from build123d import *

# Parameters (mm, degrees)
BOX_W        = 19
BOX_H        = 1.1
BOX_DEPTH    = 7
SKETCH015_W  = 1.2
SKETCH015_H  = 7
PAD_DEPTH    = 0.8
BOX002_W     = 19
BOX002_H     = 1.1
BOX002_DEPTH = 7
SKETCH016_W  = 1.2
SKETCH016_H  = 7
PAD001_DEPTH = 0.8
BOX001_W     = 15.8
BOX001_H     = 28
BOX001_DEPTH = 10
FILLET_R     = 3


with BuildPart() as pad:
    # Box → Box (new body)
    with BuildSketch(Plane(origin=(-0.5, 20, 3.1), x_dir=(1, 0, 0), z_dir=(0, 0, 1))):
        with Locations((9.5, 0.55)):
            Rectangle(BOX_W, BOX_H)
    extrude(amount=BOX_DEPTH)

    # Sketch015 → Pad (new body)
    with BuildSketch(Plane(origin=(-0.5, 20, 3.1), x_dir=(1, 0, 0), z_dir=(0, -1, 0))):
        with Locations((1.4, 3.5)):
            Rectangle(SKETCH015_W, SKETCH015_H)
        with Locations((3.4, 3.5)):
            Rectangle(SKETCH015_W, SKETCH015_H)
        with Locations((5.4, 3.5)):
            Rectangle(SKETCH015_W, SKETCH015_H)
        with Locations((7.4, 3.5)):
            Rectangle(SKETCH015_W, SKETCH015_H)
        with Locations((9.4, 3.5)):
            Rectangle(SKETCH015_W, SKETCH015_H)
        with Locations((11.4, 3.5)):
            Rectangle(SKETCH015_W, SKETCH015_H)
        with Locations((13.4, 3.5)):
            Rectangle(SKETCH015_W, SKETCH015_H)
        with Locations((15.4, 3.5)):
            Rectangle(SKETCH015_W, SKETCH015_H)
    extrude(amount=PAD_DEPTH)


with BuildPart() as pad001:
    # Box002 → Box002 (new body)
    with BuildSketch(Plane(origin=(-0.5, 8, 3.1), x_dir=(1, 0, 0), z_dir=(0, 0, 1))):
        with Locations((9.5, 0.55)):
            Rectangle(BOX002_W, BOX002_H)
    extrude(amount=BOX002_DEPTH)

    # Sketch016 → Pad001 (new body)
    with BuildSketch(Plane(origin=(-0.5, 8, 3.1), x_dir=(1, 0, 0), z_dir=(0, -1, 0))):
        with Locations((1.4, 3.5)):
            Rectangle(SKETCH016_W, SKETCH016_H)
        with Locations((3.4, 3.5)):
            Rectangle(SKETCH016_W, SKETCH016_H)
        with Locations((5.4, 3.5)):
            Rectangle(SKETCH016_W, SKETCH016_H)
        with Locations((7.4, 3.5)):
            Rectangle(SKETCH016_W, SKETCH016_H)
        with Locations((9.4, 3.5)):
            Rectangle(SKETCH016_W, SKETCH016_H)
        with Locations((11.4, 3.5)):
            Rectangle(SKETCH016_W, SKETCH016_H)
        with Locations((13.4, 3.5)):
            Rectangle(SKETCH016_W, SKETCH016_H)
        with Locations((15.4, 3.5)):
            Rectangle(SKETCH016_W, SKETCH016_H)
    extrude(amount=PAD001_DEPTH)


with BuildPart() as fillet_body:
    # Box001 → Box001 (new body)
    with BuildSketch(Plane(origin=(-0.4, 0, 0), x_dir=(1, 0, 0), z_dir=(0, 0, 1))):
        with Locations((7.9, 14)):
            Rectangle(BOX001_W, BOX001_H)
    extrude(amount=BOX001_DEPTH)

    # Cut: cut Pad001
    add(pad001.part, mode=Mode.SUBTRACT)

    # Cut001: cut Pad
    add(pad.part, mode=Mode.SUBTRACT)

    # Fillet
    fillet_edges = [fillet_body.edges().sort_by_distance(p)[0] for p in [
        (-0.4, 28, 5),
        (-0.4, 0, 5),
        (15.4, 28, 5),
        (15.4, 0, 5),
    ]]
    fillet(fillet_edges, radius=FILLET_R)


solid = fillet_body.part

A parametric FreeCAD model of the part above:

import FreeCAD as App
import Part
import Sketcher

V = App.Vector
Q = App.Units.Quantity


def edges_at(feature, points):
    """Names of the edges that pass closest to the given points."""
    edges = feature.Shape.Edges
    near = lambda p: min(range(len(edges)), key=lambda i: edges[i].distToShape(Part.Vertex(*p))[0])
    return sorted({f"Edge{near(p) + 1}" for p in points})


def add_polygon(sketch, points):
    """Adds a closed chain of lines whose ends are joined by coincident constraints."""
    first, n = sketch.GeometryCount, len(points)
    for a, b in zip(points, points[1:] + points[:1]):
        sketch.addGeometry(Part.LineSegment(App.Vector(*a, 0), App.Vector(*b, 0)), False)
    for i in range(n):
        sketch.addConstraint(Sketcher.Constraint("Coincident", first + i, 2, first + (i + 1) % n, 1))

doc = App.newDocument("Part")
params = doc.addObject("Spreadsheet::Sheet", "Params")
for row, (alias, value) in enumerate([
    ("sketch1_width", "19 mm"),
    ("sketch1_height", "1.1 mm"),
    ("pad1_length", "7 mm"),
    ("sketch2_height", "7 mm"),
    ("sketch2_width", "1.2 mm"),
    ("pad2_length", "0.8 mm"),
    ("sketch3_width", "19 mm"),
    ("sketch3_height", "1.1 mm"),
    ("pad3_length", "7 mm"),
    ("sketch4_height", "7 mm"),
    ("sketch4_width", "1.2 mm"),
    ("pad4_length", "0.8 mm"),
    ("sketch5_height", "28 mm"),
    ("sketch5_width", "15.8 mm"),
    ("pad5_length", "10 mm"),
    ("fillet_radius", "3 mm"),
], start=1):
    params.set(f"A{row}", alias)
    params.set(f"B{row}", "=" + value)
    params.setAlias(f"B{row}", alias)

body = doc.addObject("PartDesign::Body", "Body")

# Sketch on XY plane
sketch1 = body.newObject("Sketcher::SketchObject", "Sketch")
sketch1.AttachmentSupport = (doc.getObject("XY_Plane"), [""])
sketch1.MapMode = "FlatFace"
sketch1.AttachmentOffset = App.Placement(V(0, 0, 3.1), App.Rotation())
add_polygon(sketch1, [(-0.5, 21.1), (-0.5, 20), (18.5, 20), (18.5, 21.1)])  # lines 0-3
sketch1.addConstraint([
    Sketcher.Constraint("Vertical", 0),
    Sketcher.Constraint("Horizontal", 1),
    Sketcher.Constraint("Vertical", 2),
    Sketcher.Constraint("Horizontal", 3),
    Sketcher.Constraint("DistanceX", 1, 1, 1, 2, Q("19 mm")),
    Sketcher.Constraint("DistanceY", 0, 2, 0, 1, Q("1.1 mm")),
    Sketcher.Constraint("DistanceY", -1, 1, 0, 2, Q("20 mm")),
    Sketcher.Constraint("DistanceX", 0, 2, -1, 1, Q("0.5 mm")),
])
sketch1.setExpression("Constraints[8]", "Params.sketch1_width")
sketch1.setExpression("Constraints[9]", "Params.sketch1_height")
pad1 = body.newObject("PartDesign::Pad", "Pad")
pad1.Profile = sketch1
pad1.setExpression("Length", "Params.pad1_length")

# Sketch on XZ plane
sketch2 = body.newObject("Sketcher::SketchObject", "Sketch001")
sketch2.AttachmentSupport = (doc.getObject("XZ_Plane"), [""])
sketch2.MapMode = "FlatFace"
sketch2.AttachmentOffset = App.Placement(V(0, 0, -20), App.Rotation())
add_polygon(sketch2, [(0.3, 10.1), (0.3, 3.1), (1.5, 3.1), (1.5, 10.1)])  # lines 0-3
add_polygon(sketch2, [(2.3, 10.1), (2.3, 3.1), (3.5, 3.1), (3.5, 10.1)])  # lines 4-7
add_polygon(sketch2, [(4.3, 10.1), (4.3, 3.1), (5.5, 3.1), (5.5, 10.1)])  # lines 8-11
add_polygon(sketch2, [(6.3, 10.1), (6.3, 3.1), (7.5, 3.1), (7.5, 10.1)])  # lines 12-15
add_polygon(sketch2, [(8.3, 10.1), (8.3, 3.1), (9.5, 3.1), (9.5, 10.1)])  # lines 16-19
add_polygon(sketch2, [(10.3, 10.1), (10.3, 3.1), (11.5, 3.1), (11.5, 10.1)])  # lines 20-23
add_polygon(sketch2, [(12.3, 10.1), (12.3, 3.1), (13.5, 3.1), (13.5, 10.1)])  # lines 24-27
add_polygon(sketch2, [(14.3, 10.1), (14.3, 3.1), (15.5, 3.1), (15.5, 10.1)])  # lines 28-31
sketch2.addConstraint([
    Sketcher.Constraint("Vertical", 0),
    Sketcher.Constraint("Horizontal", 1),
    Sketcher.Constraint("Vertical", 2),
    Sketcher.Constraint("Horizontal", 3),
    Sketcher.Constraint("Vertical", 4),
    Sketcher.Constraint("Horizontal", 5),
    Sketcher.Constraint("Vertical", 6),
    Sketcher.Constraint("Horizontal", 7),
    Sketcher.Constraint("Vertical", 8),
    Sketcher.Constraint("Horizontal", 9),
    Sketcher.Constraint("Vertical", 10),
    Sketcher.Constraint("Horizontal", 11),
    Sketcher.Constraint("Vertical", 12),
    Sketcher.Constraint("Horizontal", 13),
    Sketcher.Constraint("Vertical", 14),
    Sketcher.Constraint("Horizontal", 15),
    Sketcher.Constraint("Vertical", 16),
    Sketcher.Constraint("Horizontal", 17),
    Sketcher.Constraint("Vertical", 18),
    Sketcher.Constraint("Horizontal", 19),
    Sketcher.Constraint("Vertical", 20),
    Sketcher.Constraint("Horizontal", 21),
    Sketcher.Constraint("Vertical", 22),
    Sketcher.Constraint("Horizontal", 23),
    Sketcher.Constraint("Vertical", 24),
    Sketcher.Constraint("Horizontal", 25),
    Sketcher.Constraint("Vertical", 26),
    Sketcher.Constraint("Horizontal", 27),
    Sketcher.Constraint("Vertical", 28),
    Sketcher.Constraint("Horizontal", 29),
    Sketcher.Constraint("Vertical", 30),
    Sketcher.Constraint("Horizontal", 31),
    Sketcher.Constraint("Horizontal", 1, 2, 4, 2),
    Sketcher.Constraint("Horizontal", 3, 2, 6, 2),
    Sketcher.Constraint("Horizontal", 5, 2, 8, 2),
    Sketcher.Constraint("Horizontal", 7, 2, 10, 2),
    Sketcher.Constraint("Horizontal", 9, 2, 12, 2),
    Sketcher.Constraint("Horizontal", 11, 2, 14, 2),
    Sketcher.Constraint("Horizontal", 13, 2, 16, 2),
    Sketcher.Constraint("Horizontal", 15, 2, 18, 2),
    Sketcher.Constraint("Horizontal", 17, 2, 20, 2),
    Sketcher.Constraint("Horizontal", 19, 2, 22, 2),
    Sketcher.Constraint("Horizontal", 21, 2, 24, 2),
    Sketcher.Constraint("Horizontal", 23, 2, 26, 2),
    Sketcher.Constraint("Horizontal", 25, 2, 28, 2),
    Sketcher.Constraint("Horizontal", 27, 2, 30, 2),
    Sketcher.Constraint("Equal", 3, 5),
    Sketcher.Constraint("Equal", 7, 9),
    Sketcher.Constraint("Equal", 11, 13),
    Sketcher.Constraint("Equal", 15, 17),
    Sketcher.Constraint("Equal", 19, 21),
    Sketcher.Constraint("Equal", 23, 25),
    Sketcher.Constraint("Equal", 27, 29),
    Sketcher.Constraint("DistanceY", 0, 2, 0, 1, Q("7 mm")),
    Sketcher.Constraint("DistanceX", 1, 1, 1, 2, Q("1.2 mm")),
    Sketcher.Constraint("DistanceX", 0, 2, 4, 2, Q("2 mm")),
    Sketcher.Constraint("DistanceX", 4, 2, 8, 2, Q("2 mm")),
    Sketcher.Constraint("DistanceX", 8, 2, 12, 2, Q("2 mm")),
    Sketcher.Constraint("DistanceX", 12, 2, 16, 2, Q("2 mm")),
    Sketcher.Constraint("DistanceX", 16, 2, 20, 2, Q("2 mm")),
    Sketcher.Constraint("DistanceX", 20, 2, 24, 2, Q("2 mm")),
    Sketcher.Constraint("DistanceX", 24, 2, 28, 2, Q("2 mm")),
    Sketcher.Constraint("DistanceX", -1, 1, 0, 2, Q("0.3 mm")),
    Sketcher.Constraint("DistanceY", -1, 1, 0, 2, Q("3.1 mm")),
])
sketch2.setExpression("Constraints[85]", "Params.sketch2_height")
sketch2.setExpression("Constraints[86]", "Params.sketch2_width")
pad2 = body.newObject("PartDesign::Pad", "Pad001")
pad2.Profile = sketch2
pad2.setExpression("Length", "Params.pad2_length")
body2 = doc.addObject("PartDesign::Body", "Body001")

# Sketch on XY plane
sketch3 = body2.newObject("Sketcher::SketchObject", "Sketch002")
sketch3.AttachmentSupport = (doc.getObject("XY_Plane001"), [""])
sketch3.MapMode = "FlatFace"
sketch3.AttachmentOffset = App.Placement(V(0, 0, 3.1), App.Rotation())
add_polygon(sketch3, [(-0.5, 9.1), (-0.5, 8), (18.5, 8), (18.5, 9.1)])  # lines 0-3
sketch3.addConstraint([
    Sketcher.Constraint("Vertical", 0),
    Sketcher.Constraint("Horizontal", 1),
    Sketcher.Constraint("Vertical", 2),
    Sketcher.Constraint("Horizontal", 3),
    Sketcher.Constraint("DistanceX", 1, 1, 1, 2, Q("19 mm")),
    Sketcher.Constraint("DistanceY", 0, 2, 0, 1, Q("1.1 mm")),
    Sketcher.Constraint("DistanceY", -1, 1, 0, 2, Q("8 mm")),
    Sketcher.Constraint("DistanceX", 0, 2, -1, 1, Q("0.5 mm")),
])
sketch3.setExpression("Constraints[8]", "Params.sketch3_width")
sketch3.setExpression("Constraints[9]", "Params.sketch3_height")
pad3 = body2.newObject("PartDesign::Pad", "Pad002")
pad3.Profile = sketch3
pad3.setExpression("Length", "Params.pad3_length")

# Sketch on XZ plane
sketch4 = body2.newObject("Sketcher::SketchObject", "Sketch003")
sketch4.AttachmentSupport = (doc.getObject("XZ_Plane001"), [""])
sketch4.MapMode = "FlatFace"
sketch4.AttachmentOffset = App.Placement(V(0, 0, -8), App.Rotation())
add_polygon(sketch4, [(0.3, 10.1), (0.3, 3.1), (1.5, 3.1), (1.5, 10.1)])  # lines 0-3
add_polygon(sketch4, [(2.3, 10.1), (2.3, 3.1), (3.5, 3.1), (3.5, 10.1)])  # lines 4-7
add_polygon(sketch4, [(4.3, 10.1), (4.3, 3.1), (5.5, 3.1), (5.5, 10.1)])  # lines 8-11
add_polygon(sketch4, [(6.3, 10.1), (6.3, 3.1), (7.5, 3.1), (7.5, 10.1)])  # lines 12-15
add_polygon(sketch4, [(8.3, 10.1), (8.3, 3.1), (9.5, 3.1), (9.5, 10.1)])  # lines 16-19
add_polygon(sketch4, [(10.3, 10.1), (10.3, 3.1), (11.5, 3.1), (11.5, 10.1)])  # lines 20-23
add_polygon(sketch4, [(12.3, 10.1), (12.3, 3.1), (13.5, 3.1), (13.5, 10.1)])  # lines 24-27
add_polygon(sketch4, [(14.3, 10.1), (14.3, 3.1), (15.5, 3.1), (15.5, 10.1)])  # lines 28-31
sketch4.addConstraint([
    Sketcher.Constraint("Vertical", 0),
    Sketcher.Constraint("Horizontal", 1),
    Sketcher.Constraint("Vertical", 2),
    Sketcher.Constraint("Horizontal", 3),
    Sketcher.Constraint("Vertical", 4),
    Sketcher.Constraint("Horizontal", 5),
    Sketcher.Constraint("Vertical", 6),
    Sketcher.Constraint("Horizontal", 7),
    Sketcher.Constraint("Vertical", 8),
    Sketcher.Constraint("Horizontal", 9),
    Sketcher.Constraint("Vertical", 10),
    Sketcher.Constraint("Horizontal", 11),
    Sketcher.Constraint("Vertical", 12),
    Sketcher.Constraint("Horizontal", 13),
    Sketcher.Constraint("Vertical", 14),
    Sketcher.Constraint("Horizontal", 15),
    Sketcher.Constraint("Vertical", 16),
    Sketcher.Constraint("Horizontal", 17),
    Sketcher.Constraint("Vertical", 18),
    Sketcher.Constraint("Horizontal", 19),
    Sketcher.Constraint("Vertical", 20),
    Sketcher.Constraint("Horizontal", 21),
    Sketcher.Constraint("Vertical", 22),
    Sketcher.Constraint("Horizontal", 23),
    Sketcher.Constraint("Vertical", 24),
    Sketcher.Constraint("Horizontal", 25),
    Sketcher.Constraint("Vertical", 26),
    Sketcher.Constraint("Horizontal", 27),
    Sketcher.Constraint("Vertical", 28),
    Sketcher.Constraint("Horizontal", 29),
    Sketcher.Constraint("Vertical", 30),
    Sketcher.Constraint("Horizontal", 31),
    Sketcher.Constraint("Horizontal", 1, 2, 4, 2),
    Sketcher.Constraint("Horizontal", 3, 2, 6, 2),
    Sketcher.Constraint("Horizontal", 5, 2, 8, 2),
    Sketcher.Constraint("Horizontal", 7, 2, 10, 2),
    Sketcher.Constraint("Horizontal", 9, 2, 12, 2),
    Sketcher.Constraint("Horizontal", 11, 2, 14, 2),
    Sketcher.Constraint("Horizontal", 13, 2, 16, 2),
    Sketcher.Constraint("Horizontal", 15, 2, 18, 2),
    Sketcher.Constraint("Horizontal", 17, 2, 20, 2),
    Sketcher.Constraint("Horizontal", 19, 2, 22, 2),
    Sketcher.Constraint("Horizontal", 21, 2, 24, 2),
    Sketcher.Constraint("Horizontal", 23, 2, 26, 2),
    Sketcher.Constraint("Horizontal", 25, 2, 28, 2),
    Sketcher.Constraint("Horizontal", 27, 2, 30, 2),
    Sketcher.Constraint("Equal", 3, 5),
    Sketcher.Constraint("Equal", 7, 9),
    Sketcher.Constraint("Equal", 11, 13),
    Sketcher.Constraint("Equal", 15, 17),
    Sketcher.Constraint("Equal", 19, 21),
    Sketcher.Constraint("Equal", 23, 25),
    Sketcher.Constraint("Equal", 27, 29),
    Sketcher.Constraint("DistanceY", 0, 2, 0, 1, Q("7 mm")),
    Sketcher.Constraint("DistanceX", 1, 1, 1, 2, Q("1.2 mm")),
    Sketcher.Constraint("DistanceX", 0, 2, 4, 2, Q("2 mm")),
    Sketcher.Constraint("DistanceX", 4, 2, 8, 2, Q("2 mm")),
    Sketcher.Constraint("DistanceX", 8, 2, 12, 2, Q("2 mm")),
    Sketcher.Constraint("DistanceX", 12, 2, 16, 2, Q("2 mm")),
    Sketcher.Constraint("DistanceX", 16, 2, 20, 2, Q("2 mm")),
    Sketcher.Constraint("DistanceX", 20, 2, 24, 2, Q("2 mm")),
    Sketcher.Constraint("DistanceX", 24, 2, 28, 2, Q("2 mm")),
    Sketcher.Constraint("DistanceX", -1, 1, 0, 2, Q("0.3 mm")),
    Sketcher.Constraint("DistanceY", -1, 1, 0, 2, Q("3.1 mm")),
])
sketch4.setExpression("Constraints[85]", "Params.sketch4_height")
sketch4.setExpression("Constraints[86]", "Params.sketch4_width")
pad4 = body2.newObject("PartDesign::Pad", "Pad003")
pad4.Profile = sketch4
pad4.setExpression("Length", "Params.pad4_length")
body3 = doc.addObject("PartDesign::Body", "Body002")

# Sketch on XY plane
sketch5 = body3.newObject("Sketcher::SketchObject", "Sketch004")
sketch5.AttachmentSupport = (doc.getObject("XY_Plane002"), [""])
sketch5.MapMode = "FlatFace"
add_polygon(sketch5, [(0, 28), (0, 0), (15, 0), (15, 28)])  # lines 0-3
sketch5.addConstraint([
    Sketcher.Constraint("Vertical", 0),
    Sketcher.Constraint("Horizontal", 1),
    Sketcher.Constraint("Vertical", 2),
    Sketcher.Constraint("Horizontal", 3),
    Sketcher.Constraint("PointOnObject", 0, 2, -1),
    Sketcher.Constraint("DistanceY", 0, 2, 0, 1, Q("28 mm")),
    Sketcher.Constraint("DistanceX", 1, 1, 1, 2, Q("15.8 mm")),
    Sketcher.Constraint("DistanceX", 0, 2, -1, 1, Q("0.4 mm")),
])
sketch5.setExpression("Constraints[9]", "Params.sketch5_height")
sketch5.setExpression("Constraints[10]", "Params.sketch5_width")
pad5 = body3.newObject("PartDesign::Pad", "Pad004")
pad5.Profile = sketch5
pad5.setExpression("Length", "Params.pad5_length")
doc.recompute()

boolean = body3.newObject("PartDesign::Boolean", "Boolean")
boolean.Type = "Cut"
boolean.addObjects([body2])
doc.recompute()

boolean2 = body3.newObject("PartDesign::Boolean", "Boolean001")
boolean2.Type = "Cut"
boolean2.addObjects([body])
doc.recompute()

fillet = body3.newObject("PartDesign::Fillet", "Fillet")
fillet.Base = (boolean2, edges_at(boolean2, [
    (-0.4, 28, 5),
    (-0.4, 0, 5),
    (15.4, 28, 5),
    (15.4, 0, 5),
]))
fillet.setExpression("Radius", "Params.fillet_radius")

doc.recompute()
